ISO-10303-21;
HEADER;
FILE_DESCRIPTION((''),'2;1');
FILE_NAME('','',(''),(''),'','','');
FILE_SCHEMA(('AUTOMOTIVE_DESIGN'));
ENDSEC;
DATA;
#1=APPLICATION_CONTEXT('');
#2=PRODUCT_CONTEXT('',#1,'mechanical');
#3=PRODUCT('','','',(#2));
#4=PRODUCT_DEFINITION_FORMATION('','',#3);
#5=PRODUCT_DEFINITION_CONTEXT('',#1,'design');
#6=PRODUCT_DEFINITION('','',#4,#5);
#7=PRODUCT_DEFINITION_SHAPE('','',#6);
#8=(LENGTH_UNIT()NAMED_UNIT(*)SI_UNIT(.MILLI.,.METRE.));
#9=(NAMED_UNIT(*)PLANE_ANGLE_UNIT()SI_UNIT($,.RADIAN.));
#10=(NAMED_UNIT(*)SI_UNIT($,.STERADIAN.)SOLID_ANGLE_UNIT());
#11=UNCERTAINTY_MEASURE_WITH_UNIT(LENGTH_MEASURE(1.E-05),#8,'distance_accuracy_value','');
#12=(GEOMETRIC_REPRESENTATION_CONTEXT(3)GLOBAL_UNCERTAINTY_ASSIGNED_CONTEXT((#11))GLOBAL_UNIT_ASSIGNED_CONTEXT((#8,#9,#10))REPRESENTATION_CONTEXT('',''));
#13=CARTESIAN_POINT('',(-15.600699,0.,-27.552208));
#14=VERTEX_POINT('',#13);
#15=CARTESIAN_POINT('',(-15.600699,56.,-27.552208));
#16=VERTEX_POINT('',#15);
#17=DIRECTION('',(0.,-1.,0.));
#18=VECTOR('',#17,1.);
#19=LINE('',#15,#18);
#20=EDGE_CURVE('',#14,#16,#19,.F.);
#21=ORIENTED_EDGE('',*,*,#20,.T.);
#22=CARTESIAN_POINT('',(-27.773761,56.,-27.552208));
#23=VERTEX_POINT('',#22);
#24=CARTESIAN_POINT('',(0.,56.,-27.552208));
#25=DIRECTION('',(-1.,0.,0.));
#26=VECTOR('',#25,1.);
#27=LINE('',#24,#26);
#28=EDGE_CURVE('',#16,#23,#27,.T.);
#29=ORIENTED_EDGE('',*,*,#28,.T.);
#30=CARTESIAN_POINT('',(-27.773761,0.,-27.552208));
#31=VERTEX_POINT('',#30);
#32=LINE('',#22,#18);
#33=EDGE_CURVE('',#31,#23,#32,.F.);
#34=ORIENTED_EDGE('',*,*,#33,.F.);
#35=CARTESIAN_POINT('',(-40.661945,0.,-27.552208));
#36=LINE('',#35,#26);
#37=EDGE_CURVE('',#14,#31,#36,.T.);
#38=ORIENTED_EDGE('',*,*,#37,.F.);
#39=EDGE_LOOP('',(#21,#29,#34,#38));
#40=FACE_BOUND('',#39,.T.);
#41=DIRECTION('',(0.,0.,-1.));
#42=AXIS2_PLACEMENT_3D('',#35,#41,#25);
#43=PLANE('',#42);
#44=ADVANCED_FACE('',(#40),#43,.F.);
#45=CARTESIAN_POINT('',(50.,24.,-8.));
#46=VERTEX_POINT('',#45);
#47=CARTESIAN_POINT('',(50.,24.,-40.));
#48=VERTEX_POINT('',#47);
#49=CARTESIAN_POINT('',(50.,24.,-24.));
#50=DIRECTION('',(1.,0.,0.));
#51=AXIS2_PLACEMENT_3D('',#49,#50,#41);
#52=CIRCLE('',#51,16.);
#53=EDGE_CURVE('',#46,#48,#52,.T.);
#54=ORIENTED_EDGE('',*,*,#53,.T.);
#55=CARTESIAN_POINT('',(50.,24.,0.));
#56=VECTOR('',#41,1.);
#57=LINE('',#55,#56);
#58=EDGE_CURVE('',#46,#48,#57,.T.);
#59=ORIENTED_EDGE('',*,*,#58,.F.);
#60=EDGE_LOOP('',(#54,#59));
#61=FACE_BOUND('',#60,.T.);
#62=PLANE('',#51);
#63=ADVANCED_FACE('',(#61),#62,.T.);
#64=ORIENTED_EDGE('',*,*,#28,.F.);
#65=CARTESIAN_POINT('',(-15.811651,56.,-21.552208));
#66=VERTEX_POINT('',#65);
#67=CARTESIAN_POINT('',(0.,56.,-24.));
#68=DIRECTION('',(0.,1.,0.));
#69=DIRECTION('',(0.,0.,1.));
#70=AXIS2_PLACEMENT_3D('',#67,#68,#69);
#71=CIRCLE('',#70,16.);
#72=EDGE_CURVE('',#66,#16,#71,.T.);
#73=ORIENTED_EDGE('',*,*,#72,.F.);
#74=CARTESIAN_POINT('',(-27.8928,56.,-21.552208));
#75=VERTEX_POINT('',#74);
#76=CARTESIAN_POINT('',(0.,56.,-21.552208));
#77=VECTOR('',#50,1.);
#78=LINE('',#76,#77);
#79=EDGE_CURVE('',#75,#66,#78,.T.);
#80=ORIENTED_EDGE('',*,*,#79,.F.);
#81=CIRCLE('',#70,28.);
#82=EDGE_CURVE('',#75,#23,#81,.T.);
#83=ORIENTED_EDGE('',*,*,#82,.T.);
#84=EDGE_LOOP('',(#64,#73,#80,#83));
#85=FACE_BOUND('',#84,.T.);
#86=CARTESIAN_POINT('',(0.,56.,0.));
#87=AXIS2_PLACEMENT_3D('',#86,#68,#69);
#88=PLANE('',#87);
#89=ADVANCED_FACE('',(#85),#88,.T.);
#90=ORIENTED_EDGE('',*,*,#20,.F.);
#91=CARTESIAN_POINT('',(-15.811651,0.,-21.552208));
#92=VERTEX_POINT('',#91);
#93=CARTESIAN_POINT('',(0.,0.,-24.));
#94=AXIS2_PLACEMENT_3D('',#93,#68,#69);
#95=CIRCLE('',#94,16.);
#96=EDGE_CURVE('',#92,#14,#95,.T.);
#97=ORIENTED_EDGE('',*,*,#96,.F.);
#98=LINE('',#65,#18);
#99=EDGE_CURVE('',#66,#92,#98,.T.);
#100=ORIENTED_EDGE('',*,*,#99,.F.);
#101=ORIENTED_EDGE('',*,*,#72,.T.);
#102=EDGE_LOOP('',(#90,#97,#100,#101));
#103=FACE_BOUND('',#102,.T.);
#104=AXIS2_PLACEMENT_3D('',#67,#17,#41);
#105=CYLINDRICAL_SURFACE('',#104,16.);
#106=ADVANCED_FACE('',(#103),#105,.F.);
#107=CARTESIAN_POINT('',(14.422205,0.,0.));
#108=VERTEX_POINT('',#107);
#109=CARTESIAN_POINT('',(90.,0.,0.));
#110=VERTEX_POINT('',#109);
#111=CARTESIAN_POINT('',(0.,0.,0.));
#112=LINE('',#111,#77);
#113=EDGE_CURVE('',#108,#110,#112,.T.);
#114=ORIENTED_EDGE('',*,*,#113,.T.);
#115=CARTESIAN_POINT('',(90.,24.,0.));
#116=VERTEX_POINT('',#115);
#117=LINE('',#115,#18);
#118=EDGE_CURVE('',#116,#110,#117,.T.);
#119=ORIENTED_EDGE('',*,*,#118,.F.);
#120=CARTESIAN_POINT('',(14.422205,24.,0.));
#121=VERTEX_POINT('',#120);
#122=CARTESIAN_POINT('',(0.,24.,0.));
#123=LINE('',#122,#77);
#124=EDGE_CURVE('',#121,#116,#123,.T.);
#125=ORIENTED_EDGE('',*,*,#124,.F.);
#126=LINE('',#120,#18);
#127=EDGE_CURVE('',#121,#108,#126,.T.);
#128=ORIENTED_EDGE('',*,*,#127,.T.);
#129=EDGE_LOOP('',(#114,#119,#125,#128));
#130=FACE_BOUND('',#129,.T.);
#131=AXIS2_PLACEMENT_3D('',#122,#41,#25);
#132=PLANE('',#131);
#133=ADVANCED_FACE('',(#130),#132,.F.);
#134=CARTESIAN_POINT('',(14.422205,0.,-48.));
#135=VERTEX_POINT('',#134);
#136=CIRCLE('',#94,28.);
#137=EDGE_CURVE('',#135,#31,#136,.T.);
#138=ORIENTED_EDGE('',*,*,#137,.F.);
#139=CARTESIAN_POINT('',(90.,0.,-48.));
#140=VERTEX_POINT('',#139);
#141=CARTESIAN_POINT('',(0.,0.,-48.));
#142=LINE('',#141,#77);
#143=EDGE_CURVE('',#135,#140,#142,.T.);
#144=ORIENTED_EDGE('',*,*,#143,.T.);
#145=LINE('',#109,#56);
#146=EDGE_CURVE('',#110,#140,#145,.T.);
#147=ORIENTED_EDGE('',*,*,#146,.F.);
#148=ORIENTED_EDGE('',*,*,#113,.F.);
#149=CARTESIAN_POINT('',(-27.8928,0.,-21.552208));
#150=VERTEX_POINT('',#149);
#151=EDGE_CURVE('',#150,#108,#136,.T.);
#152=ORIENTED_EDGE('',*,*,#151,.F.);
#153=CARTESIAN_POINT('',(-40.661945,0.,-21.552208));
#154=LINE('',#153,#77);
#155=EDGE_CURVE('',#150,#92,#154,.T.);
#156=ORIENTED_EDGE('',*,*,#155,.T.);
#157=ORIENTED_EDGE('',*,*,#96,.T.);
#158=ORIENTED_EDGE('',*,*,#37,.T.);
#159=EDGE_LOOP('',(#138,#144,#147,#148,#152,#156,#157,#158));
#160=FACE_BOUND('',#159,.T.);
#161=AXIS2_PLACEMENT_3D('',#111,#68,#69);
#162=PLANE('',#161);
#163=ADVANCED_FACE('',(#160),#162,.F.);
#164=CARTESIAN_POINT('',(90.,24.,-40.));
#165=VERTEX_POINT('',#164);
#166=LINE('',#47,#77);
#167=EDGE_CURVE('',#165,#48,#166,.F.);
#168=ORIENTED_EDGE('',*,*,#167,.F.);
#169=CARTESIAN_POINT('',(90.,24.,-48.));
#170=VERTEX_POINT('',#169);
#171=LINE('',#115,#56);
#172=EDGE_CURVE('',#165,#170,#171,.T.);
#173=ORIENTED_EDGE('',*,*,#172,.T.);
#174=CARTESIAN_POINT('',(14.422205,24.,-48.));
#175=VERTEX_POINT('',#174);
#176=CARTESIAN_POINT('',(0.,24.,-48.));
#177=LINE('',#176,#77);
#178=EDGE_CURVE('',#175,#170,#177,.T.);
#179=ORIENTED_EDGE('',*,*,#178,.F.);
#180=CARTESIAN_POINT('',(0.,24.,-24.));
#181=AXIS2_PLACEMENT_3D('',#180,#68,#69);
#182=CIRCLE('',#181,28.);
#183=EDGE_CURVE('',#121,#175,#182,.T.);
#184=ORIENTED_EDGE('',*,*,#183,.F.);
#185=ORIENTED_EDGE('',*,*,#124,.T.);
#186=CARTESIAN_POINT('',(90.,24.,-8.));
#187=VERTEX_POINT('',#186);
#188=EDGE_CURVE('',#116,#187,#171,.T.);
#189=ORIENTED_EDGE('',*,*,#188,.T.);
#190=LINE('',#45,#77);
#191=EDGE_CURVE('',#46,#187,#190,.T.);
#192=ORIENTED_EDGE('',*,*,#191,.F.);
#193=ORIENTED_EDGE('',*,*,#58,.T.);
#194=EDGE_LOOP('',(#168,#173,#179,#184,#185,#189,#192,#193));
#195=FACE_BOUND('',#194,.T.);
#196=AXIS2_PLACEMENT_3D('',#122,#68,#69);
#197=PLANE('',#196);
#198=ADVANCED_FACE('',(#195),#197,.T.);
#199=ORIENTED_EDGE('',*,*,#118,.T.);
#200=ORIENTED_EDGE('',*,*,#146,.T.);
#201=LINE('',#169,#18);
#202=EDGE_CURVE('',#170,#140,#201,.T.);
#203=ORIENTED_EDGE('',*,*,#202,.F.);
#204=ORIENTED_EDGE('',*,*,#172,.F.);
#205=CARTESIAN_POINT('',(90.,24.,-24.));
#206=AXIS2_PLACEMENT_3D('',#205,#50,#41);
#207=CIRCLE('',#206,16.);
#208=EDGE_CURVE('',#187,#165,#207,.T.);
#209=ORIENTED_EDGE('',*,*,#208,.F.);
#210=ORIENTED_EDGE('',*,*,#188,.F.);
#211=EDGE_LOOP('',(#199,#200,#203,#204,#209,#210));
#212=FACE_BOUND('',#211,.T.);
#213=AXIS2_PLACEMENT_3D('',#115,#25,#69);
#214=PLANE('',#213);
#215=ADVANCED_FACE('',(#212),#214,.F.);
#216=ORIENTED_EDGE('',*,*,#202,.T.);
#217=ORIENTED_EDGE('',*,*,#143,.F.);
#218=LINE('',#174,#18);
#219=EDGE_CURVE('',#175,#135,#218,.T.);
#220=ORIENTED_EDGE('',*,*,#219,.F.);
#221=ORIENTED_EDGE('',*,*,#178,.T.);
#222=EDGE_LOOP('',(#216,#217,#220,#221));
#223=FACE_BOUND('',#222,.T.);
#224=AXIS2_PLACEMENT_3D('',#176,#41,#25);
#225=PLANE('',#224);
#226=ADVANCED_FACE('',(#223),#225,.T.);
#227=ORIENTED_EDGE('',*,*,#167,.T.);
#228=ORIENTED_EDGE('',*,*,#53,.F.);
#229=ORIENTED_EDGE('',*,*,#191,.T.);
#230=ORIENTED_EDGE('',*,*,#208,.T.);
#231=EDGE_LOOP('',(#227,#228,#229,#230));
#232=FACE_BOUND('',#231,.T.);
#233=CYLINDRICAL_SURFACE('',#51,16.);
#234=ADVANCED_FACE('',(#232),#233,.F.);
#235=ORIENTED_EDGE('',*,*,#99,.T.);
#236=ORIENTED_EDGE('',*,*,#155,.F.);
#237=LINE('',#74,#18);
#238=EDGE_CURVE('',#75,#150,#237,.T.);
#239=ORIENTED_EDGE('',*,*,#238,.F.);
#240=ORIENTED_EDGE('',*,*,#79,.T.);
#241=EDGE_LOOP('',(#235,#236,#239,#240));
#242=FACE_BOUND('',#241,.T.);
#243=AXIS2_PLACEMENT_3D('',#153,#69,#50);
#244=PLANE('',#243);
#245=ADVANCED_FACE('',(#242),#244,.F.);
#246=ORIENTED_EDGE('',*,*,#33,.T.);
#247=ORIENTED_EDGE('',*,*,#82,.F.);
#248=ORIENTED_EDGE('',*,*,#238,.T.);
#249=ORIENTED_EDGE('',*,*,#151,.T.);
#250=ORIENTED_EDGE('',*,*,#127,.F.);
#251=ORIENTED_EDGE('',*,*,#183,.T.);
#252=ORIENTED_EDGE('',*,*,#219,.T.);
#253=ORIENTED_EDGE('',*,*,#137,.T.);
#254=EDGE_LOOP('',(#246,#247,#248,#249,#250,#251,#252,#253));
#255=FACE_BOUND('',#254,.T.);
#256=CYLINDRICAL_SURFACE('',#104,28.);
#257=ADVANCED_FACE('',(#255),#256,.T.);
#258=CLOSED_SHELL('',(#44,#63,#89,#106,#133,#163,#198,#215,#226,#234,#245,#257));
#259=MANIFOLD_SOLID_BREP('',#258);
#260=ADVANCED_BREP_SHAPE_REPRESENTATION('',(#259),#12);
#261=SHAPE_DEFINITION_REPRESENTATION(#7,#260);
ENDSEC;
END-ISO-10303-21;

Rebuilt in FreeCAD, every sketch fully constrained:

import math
import FreeCAD as App
import Part
import Sketcher

V = App.Vector
Q = App.Units.Quantity


def add_polygon(sketch, points):
    """Adds a closed chain of lines whose ends are joined by coincident constraints."""
    first, n = sketch.GeometryCount, len(points)
    for a, b in zip(points, points[1:] + points[:1]):
        sketch.addGeometry(Part.LineSegment(App.Vector(*a, 0), App.Vector(*b, 0)), False)
    for i in range(n):
        sketch.addConstraint(Sketcher.Constraint("Coincident", first + i, 2, first + (i + 1) % n, 1))

doc = App.newDocument("Part")
body = doc.addObject("PartDesign::Body", "Body")

# Sketch on XZ plane
sketch1 = doc.addObject("Sketcher::SketchObject", "Sketch")
body.addObject(sketch1)
sketch1.AttachmentSupport = (doc.XZ_Plane, [""])
sketch1.MapMode = "FlatFace"
sketch1.addGeometry([
    Part.ArcOfCircle(Part.Circle(V(0, -24, 0), V(0, 0, 1), 28), math.radians(0), math.radians(59)),  # 0
    Part.LineSegment(V(14, 0, 0), V(90, 0, 0)),  # 1
    Part.LineSegment(V(90, 0, 0), V(90, -48, 0)),  # 2
    Part.LineSegment(V(90, -48, 0), V(14, -48, 0)),  # 3
    Part.ArcOfCircle(Part.Circle(V(0, -24, 0), V(0, 0, 1), 28), math.radians(-59), math.radians(0)),  # 4
], False)
sketch1.addConstraint([
    Sketcher.Constraint("Coincident", 0, 2, 1, 1),
    Sketcher.Constraint("Coincident", 1, 2, 2, 1),
    Sketcher.Constraint("Coincident", 2, 2, 3, 1),
    Sketcher.Constraint("Coincident", 3, 2, 4, 1),
    Sketcher.Constraint("Tangent", 4, 2, 0, 1),
    Sketcher.Constraint("Horizontal", 1),
    Sketcher.Constraint("Vertical", 2),
    Sketcher.Constraint("Horizontal", 3),
    Sketcher.Constraint("Equal", 0, 4),
    Sketcher.Constraint("PointOnObject", 0, 3, -2),
    Sketcher.Constraint("PointOnObject", 0, 2, -1),
    Sketcher.Constraint("Horizontal", 0, 3, 4, 2),
    Sketcher.Constraint("Vertical", 0, 2, 3, 2),
    Sketcher.Constraint("Radius", 0, Q("28 mm")),
    Sketcher.Constraint("DistanceY", 2, 2, 2, 1, Q("48 mm")),
    Sketcher.Constraint("DistanceX", -1, 1, 1, 2, Q("90 mm")),
])
pad1 = doc.addObject("PartDesign::Pad", "Pad")
body.addObject(pad1)
pad1.Profile = sketch1
pad1.Length = 24
pad1.Reversed = True

# Sketch on XZ plane
sketch2 = doc.addObject("Sketcher::SketchObject", "Sketch001")
body.addObject(sketch2)
sketch2.AttachmentSupport = (doc.XZ_Plane, [""])
sketch2.MapMode = "FlatFace"
sketch2.addGeometry([
    Part.Circle(V(0, -24, 0), V(0, 0, 1), 28),
    Part.Circle(V(0, -24, 0), V(0, 0, 1), 16),
], False)
sketch2.addConstraint([
    Sketcher.Constraint("Coincident", 1, 3, 0, 3),
    Sketcher.Constraint("PointOnObject", 0, 3, -2),
    Sketcher.Constraint("Diameter", 0, Q("56 mm")),
    Sketcher.Constraint("Diameter", 1, Q("32 mm")),
    Sketcher.Constraint("DistanceY", 0, 3, -1, 1, Q("24 mm")),
])
pad2 = doc.addObject("PartDesign::Pad", "Pad001")
body.addObject(pad2)
pad2.Profile = sketch2
pad2.Length = 56
pad2.Reversed = True

# Sketch on XZ plane
sketch3 = doc.addObject("Sketcher::SketchObject", "Sketch002")
body.addObject(sketch3)
sketch3.AttachmentSupport = (doc.XZ_Plane, [""])
sketch3.MapMode = "FlatFace"
sketch3.AttachmentOffset = App.Placement(V(0, 0, -56), App.Rotation())
add_polygon(sketch3, [(-41, -28), (-41, -22), (-2, -22), (-2, -28)])  # lines 0-3
sketch3.addConstraint([
    Sketcher.Constraint("Vertical", 0),
    Sketcher.Constraint("Horizontal", 1),
    Sketcher.Constraint("Vertical", 2),
    Sketcher.Constraint("Horizontal", 3),
    Sketcher.Constraint("DistanceY", 0, 1, 0, 2, Q("6 mm")),
    Sketcher.Constraint("DistanceX", 1, 1, 1, 2, Q("38.610962 mm")),
    Sketcher.Constraint("DistanceY", 0, 2, -1, 1, Q("21.552208 mm")),
    Sketcher.Constraint("DistanceX", 0, 2, -1, 1, Q("40.661945 mm")),
])
pocket1 = doc.addObject("PartDesign::Pocket", "Pocket")
body.addObject(pocket1)
pocket1.Profile = sketch3
pocket1.Type = "ThroughAll"
pocket1.Reversed = True

# Sketch on YZ plane
sketch4 = doc.addObject("Sketcher::SketchObject", "Sketch003")
body.addObject(sketch4)
sketch4.AttachmentSupport = (doc.YZ_Plane, [""])
sketch4.MapMode = "FlatFace"
sketch4.AttachmentOffset = App.Placement(V(0, 0, 90), App.Rotation())
sketch4.addGeometry(Part.Circle(V(24, -24, 0), V(0, 0, 1), 16), False)
sketch4.addConstraint([
    Sketcher.Constraint("Diameter", 0, Q("32 mm")),
    Sketcher.Constraint("DistanceX", -1, 1, 0, 3, Q("24 mm")),
    Sketcher.Constraint("DistanceY", 0, 3, -1, 1, Q("24 mm")),
])
pocket2 = doc.addObject("PartDesign::Pocket", "Pocket001")
body.addObject(pocket2)
pocket2.Profile = sketch4
pocket2.Length = 40

doc.recompute()
